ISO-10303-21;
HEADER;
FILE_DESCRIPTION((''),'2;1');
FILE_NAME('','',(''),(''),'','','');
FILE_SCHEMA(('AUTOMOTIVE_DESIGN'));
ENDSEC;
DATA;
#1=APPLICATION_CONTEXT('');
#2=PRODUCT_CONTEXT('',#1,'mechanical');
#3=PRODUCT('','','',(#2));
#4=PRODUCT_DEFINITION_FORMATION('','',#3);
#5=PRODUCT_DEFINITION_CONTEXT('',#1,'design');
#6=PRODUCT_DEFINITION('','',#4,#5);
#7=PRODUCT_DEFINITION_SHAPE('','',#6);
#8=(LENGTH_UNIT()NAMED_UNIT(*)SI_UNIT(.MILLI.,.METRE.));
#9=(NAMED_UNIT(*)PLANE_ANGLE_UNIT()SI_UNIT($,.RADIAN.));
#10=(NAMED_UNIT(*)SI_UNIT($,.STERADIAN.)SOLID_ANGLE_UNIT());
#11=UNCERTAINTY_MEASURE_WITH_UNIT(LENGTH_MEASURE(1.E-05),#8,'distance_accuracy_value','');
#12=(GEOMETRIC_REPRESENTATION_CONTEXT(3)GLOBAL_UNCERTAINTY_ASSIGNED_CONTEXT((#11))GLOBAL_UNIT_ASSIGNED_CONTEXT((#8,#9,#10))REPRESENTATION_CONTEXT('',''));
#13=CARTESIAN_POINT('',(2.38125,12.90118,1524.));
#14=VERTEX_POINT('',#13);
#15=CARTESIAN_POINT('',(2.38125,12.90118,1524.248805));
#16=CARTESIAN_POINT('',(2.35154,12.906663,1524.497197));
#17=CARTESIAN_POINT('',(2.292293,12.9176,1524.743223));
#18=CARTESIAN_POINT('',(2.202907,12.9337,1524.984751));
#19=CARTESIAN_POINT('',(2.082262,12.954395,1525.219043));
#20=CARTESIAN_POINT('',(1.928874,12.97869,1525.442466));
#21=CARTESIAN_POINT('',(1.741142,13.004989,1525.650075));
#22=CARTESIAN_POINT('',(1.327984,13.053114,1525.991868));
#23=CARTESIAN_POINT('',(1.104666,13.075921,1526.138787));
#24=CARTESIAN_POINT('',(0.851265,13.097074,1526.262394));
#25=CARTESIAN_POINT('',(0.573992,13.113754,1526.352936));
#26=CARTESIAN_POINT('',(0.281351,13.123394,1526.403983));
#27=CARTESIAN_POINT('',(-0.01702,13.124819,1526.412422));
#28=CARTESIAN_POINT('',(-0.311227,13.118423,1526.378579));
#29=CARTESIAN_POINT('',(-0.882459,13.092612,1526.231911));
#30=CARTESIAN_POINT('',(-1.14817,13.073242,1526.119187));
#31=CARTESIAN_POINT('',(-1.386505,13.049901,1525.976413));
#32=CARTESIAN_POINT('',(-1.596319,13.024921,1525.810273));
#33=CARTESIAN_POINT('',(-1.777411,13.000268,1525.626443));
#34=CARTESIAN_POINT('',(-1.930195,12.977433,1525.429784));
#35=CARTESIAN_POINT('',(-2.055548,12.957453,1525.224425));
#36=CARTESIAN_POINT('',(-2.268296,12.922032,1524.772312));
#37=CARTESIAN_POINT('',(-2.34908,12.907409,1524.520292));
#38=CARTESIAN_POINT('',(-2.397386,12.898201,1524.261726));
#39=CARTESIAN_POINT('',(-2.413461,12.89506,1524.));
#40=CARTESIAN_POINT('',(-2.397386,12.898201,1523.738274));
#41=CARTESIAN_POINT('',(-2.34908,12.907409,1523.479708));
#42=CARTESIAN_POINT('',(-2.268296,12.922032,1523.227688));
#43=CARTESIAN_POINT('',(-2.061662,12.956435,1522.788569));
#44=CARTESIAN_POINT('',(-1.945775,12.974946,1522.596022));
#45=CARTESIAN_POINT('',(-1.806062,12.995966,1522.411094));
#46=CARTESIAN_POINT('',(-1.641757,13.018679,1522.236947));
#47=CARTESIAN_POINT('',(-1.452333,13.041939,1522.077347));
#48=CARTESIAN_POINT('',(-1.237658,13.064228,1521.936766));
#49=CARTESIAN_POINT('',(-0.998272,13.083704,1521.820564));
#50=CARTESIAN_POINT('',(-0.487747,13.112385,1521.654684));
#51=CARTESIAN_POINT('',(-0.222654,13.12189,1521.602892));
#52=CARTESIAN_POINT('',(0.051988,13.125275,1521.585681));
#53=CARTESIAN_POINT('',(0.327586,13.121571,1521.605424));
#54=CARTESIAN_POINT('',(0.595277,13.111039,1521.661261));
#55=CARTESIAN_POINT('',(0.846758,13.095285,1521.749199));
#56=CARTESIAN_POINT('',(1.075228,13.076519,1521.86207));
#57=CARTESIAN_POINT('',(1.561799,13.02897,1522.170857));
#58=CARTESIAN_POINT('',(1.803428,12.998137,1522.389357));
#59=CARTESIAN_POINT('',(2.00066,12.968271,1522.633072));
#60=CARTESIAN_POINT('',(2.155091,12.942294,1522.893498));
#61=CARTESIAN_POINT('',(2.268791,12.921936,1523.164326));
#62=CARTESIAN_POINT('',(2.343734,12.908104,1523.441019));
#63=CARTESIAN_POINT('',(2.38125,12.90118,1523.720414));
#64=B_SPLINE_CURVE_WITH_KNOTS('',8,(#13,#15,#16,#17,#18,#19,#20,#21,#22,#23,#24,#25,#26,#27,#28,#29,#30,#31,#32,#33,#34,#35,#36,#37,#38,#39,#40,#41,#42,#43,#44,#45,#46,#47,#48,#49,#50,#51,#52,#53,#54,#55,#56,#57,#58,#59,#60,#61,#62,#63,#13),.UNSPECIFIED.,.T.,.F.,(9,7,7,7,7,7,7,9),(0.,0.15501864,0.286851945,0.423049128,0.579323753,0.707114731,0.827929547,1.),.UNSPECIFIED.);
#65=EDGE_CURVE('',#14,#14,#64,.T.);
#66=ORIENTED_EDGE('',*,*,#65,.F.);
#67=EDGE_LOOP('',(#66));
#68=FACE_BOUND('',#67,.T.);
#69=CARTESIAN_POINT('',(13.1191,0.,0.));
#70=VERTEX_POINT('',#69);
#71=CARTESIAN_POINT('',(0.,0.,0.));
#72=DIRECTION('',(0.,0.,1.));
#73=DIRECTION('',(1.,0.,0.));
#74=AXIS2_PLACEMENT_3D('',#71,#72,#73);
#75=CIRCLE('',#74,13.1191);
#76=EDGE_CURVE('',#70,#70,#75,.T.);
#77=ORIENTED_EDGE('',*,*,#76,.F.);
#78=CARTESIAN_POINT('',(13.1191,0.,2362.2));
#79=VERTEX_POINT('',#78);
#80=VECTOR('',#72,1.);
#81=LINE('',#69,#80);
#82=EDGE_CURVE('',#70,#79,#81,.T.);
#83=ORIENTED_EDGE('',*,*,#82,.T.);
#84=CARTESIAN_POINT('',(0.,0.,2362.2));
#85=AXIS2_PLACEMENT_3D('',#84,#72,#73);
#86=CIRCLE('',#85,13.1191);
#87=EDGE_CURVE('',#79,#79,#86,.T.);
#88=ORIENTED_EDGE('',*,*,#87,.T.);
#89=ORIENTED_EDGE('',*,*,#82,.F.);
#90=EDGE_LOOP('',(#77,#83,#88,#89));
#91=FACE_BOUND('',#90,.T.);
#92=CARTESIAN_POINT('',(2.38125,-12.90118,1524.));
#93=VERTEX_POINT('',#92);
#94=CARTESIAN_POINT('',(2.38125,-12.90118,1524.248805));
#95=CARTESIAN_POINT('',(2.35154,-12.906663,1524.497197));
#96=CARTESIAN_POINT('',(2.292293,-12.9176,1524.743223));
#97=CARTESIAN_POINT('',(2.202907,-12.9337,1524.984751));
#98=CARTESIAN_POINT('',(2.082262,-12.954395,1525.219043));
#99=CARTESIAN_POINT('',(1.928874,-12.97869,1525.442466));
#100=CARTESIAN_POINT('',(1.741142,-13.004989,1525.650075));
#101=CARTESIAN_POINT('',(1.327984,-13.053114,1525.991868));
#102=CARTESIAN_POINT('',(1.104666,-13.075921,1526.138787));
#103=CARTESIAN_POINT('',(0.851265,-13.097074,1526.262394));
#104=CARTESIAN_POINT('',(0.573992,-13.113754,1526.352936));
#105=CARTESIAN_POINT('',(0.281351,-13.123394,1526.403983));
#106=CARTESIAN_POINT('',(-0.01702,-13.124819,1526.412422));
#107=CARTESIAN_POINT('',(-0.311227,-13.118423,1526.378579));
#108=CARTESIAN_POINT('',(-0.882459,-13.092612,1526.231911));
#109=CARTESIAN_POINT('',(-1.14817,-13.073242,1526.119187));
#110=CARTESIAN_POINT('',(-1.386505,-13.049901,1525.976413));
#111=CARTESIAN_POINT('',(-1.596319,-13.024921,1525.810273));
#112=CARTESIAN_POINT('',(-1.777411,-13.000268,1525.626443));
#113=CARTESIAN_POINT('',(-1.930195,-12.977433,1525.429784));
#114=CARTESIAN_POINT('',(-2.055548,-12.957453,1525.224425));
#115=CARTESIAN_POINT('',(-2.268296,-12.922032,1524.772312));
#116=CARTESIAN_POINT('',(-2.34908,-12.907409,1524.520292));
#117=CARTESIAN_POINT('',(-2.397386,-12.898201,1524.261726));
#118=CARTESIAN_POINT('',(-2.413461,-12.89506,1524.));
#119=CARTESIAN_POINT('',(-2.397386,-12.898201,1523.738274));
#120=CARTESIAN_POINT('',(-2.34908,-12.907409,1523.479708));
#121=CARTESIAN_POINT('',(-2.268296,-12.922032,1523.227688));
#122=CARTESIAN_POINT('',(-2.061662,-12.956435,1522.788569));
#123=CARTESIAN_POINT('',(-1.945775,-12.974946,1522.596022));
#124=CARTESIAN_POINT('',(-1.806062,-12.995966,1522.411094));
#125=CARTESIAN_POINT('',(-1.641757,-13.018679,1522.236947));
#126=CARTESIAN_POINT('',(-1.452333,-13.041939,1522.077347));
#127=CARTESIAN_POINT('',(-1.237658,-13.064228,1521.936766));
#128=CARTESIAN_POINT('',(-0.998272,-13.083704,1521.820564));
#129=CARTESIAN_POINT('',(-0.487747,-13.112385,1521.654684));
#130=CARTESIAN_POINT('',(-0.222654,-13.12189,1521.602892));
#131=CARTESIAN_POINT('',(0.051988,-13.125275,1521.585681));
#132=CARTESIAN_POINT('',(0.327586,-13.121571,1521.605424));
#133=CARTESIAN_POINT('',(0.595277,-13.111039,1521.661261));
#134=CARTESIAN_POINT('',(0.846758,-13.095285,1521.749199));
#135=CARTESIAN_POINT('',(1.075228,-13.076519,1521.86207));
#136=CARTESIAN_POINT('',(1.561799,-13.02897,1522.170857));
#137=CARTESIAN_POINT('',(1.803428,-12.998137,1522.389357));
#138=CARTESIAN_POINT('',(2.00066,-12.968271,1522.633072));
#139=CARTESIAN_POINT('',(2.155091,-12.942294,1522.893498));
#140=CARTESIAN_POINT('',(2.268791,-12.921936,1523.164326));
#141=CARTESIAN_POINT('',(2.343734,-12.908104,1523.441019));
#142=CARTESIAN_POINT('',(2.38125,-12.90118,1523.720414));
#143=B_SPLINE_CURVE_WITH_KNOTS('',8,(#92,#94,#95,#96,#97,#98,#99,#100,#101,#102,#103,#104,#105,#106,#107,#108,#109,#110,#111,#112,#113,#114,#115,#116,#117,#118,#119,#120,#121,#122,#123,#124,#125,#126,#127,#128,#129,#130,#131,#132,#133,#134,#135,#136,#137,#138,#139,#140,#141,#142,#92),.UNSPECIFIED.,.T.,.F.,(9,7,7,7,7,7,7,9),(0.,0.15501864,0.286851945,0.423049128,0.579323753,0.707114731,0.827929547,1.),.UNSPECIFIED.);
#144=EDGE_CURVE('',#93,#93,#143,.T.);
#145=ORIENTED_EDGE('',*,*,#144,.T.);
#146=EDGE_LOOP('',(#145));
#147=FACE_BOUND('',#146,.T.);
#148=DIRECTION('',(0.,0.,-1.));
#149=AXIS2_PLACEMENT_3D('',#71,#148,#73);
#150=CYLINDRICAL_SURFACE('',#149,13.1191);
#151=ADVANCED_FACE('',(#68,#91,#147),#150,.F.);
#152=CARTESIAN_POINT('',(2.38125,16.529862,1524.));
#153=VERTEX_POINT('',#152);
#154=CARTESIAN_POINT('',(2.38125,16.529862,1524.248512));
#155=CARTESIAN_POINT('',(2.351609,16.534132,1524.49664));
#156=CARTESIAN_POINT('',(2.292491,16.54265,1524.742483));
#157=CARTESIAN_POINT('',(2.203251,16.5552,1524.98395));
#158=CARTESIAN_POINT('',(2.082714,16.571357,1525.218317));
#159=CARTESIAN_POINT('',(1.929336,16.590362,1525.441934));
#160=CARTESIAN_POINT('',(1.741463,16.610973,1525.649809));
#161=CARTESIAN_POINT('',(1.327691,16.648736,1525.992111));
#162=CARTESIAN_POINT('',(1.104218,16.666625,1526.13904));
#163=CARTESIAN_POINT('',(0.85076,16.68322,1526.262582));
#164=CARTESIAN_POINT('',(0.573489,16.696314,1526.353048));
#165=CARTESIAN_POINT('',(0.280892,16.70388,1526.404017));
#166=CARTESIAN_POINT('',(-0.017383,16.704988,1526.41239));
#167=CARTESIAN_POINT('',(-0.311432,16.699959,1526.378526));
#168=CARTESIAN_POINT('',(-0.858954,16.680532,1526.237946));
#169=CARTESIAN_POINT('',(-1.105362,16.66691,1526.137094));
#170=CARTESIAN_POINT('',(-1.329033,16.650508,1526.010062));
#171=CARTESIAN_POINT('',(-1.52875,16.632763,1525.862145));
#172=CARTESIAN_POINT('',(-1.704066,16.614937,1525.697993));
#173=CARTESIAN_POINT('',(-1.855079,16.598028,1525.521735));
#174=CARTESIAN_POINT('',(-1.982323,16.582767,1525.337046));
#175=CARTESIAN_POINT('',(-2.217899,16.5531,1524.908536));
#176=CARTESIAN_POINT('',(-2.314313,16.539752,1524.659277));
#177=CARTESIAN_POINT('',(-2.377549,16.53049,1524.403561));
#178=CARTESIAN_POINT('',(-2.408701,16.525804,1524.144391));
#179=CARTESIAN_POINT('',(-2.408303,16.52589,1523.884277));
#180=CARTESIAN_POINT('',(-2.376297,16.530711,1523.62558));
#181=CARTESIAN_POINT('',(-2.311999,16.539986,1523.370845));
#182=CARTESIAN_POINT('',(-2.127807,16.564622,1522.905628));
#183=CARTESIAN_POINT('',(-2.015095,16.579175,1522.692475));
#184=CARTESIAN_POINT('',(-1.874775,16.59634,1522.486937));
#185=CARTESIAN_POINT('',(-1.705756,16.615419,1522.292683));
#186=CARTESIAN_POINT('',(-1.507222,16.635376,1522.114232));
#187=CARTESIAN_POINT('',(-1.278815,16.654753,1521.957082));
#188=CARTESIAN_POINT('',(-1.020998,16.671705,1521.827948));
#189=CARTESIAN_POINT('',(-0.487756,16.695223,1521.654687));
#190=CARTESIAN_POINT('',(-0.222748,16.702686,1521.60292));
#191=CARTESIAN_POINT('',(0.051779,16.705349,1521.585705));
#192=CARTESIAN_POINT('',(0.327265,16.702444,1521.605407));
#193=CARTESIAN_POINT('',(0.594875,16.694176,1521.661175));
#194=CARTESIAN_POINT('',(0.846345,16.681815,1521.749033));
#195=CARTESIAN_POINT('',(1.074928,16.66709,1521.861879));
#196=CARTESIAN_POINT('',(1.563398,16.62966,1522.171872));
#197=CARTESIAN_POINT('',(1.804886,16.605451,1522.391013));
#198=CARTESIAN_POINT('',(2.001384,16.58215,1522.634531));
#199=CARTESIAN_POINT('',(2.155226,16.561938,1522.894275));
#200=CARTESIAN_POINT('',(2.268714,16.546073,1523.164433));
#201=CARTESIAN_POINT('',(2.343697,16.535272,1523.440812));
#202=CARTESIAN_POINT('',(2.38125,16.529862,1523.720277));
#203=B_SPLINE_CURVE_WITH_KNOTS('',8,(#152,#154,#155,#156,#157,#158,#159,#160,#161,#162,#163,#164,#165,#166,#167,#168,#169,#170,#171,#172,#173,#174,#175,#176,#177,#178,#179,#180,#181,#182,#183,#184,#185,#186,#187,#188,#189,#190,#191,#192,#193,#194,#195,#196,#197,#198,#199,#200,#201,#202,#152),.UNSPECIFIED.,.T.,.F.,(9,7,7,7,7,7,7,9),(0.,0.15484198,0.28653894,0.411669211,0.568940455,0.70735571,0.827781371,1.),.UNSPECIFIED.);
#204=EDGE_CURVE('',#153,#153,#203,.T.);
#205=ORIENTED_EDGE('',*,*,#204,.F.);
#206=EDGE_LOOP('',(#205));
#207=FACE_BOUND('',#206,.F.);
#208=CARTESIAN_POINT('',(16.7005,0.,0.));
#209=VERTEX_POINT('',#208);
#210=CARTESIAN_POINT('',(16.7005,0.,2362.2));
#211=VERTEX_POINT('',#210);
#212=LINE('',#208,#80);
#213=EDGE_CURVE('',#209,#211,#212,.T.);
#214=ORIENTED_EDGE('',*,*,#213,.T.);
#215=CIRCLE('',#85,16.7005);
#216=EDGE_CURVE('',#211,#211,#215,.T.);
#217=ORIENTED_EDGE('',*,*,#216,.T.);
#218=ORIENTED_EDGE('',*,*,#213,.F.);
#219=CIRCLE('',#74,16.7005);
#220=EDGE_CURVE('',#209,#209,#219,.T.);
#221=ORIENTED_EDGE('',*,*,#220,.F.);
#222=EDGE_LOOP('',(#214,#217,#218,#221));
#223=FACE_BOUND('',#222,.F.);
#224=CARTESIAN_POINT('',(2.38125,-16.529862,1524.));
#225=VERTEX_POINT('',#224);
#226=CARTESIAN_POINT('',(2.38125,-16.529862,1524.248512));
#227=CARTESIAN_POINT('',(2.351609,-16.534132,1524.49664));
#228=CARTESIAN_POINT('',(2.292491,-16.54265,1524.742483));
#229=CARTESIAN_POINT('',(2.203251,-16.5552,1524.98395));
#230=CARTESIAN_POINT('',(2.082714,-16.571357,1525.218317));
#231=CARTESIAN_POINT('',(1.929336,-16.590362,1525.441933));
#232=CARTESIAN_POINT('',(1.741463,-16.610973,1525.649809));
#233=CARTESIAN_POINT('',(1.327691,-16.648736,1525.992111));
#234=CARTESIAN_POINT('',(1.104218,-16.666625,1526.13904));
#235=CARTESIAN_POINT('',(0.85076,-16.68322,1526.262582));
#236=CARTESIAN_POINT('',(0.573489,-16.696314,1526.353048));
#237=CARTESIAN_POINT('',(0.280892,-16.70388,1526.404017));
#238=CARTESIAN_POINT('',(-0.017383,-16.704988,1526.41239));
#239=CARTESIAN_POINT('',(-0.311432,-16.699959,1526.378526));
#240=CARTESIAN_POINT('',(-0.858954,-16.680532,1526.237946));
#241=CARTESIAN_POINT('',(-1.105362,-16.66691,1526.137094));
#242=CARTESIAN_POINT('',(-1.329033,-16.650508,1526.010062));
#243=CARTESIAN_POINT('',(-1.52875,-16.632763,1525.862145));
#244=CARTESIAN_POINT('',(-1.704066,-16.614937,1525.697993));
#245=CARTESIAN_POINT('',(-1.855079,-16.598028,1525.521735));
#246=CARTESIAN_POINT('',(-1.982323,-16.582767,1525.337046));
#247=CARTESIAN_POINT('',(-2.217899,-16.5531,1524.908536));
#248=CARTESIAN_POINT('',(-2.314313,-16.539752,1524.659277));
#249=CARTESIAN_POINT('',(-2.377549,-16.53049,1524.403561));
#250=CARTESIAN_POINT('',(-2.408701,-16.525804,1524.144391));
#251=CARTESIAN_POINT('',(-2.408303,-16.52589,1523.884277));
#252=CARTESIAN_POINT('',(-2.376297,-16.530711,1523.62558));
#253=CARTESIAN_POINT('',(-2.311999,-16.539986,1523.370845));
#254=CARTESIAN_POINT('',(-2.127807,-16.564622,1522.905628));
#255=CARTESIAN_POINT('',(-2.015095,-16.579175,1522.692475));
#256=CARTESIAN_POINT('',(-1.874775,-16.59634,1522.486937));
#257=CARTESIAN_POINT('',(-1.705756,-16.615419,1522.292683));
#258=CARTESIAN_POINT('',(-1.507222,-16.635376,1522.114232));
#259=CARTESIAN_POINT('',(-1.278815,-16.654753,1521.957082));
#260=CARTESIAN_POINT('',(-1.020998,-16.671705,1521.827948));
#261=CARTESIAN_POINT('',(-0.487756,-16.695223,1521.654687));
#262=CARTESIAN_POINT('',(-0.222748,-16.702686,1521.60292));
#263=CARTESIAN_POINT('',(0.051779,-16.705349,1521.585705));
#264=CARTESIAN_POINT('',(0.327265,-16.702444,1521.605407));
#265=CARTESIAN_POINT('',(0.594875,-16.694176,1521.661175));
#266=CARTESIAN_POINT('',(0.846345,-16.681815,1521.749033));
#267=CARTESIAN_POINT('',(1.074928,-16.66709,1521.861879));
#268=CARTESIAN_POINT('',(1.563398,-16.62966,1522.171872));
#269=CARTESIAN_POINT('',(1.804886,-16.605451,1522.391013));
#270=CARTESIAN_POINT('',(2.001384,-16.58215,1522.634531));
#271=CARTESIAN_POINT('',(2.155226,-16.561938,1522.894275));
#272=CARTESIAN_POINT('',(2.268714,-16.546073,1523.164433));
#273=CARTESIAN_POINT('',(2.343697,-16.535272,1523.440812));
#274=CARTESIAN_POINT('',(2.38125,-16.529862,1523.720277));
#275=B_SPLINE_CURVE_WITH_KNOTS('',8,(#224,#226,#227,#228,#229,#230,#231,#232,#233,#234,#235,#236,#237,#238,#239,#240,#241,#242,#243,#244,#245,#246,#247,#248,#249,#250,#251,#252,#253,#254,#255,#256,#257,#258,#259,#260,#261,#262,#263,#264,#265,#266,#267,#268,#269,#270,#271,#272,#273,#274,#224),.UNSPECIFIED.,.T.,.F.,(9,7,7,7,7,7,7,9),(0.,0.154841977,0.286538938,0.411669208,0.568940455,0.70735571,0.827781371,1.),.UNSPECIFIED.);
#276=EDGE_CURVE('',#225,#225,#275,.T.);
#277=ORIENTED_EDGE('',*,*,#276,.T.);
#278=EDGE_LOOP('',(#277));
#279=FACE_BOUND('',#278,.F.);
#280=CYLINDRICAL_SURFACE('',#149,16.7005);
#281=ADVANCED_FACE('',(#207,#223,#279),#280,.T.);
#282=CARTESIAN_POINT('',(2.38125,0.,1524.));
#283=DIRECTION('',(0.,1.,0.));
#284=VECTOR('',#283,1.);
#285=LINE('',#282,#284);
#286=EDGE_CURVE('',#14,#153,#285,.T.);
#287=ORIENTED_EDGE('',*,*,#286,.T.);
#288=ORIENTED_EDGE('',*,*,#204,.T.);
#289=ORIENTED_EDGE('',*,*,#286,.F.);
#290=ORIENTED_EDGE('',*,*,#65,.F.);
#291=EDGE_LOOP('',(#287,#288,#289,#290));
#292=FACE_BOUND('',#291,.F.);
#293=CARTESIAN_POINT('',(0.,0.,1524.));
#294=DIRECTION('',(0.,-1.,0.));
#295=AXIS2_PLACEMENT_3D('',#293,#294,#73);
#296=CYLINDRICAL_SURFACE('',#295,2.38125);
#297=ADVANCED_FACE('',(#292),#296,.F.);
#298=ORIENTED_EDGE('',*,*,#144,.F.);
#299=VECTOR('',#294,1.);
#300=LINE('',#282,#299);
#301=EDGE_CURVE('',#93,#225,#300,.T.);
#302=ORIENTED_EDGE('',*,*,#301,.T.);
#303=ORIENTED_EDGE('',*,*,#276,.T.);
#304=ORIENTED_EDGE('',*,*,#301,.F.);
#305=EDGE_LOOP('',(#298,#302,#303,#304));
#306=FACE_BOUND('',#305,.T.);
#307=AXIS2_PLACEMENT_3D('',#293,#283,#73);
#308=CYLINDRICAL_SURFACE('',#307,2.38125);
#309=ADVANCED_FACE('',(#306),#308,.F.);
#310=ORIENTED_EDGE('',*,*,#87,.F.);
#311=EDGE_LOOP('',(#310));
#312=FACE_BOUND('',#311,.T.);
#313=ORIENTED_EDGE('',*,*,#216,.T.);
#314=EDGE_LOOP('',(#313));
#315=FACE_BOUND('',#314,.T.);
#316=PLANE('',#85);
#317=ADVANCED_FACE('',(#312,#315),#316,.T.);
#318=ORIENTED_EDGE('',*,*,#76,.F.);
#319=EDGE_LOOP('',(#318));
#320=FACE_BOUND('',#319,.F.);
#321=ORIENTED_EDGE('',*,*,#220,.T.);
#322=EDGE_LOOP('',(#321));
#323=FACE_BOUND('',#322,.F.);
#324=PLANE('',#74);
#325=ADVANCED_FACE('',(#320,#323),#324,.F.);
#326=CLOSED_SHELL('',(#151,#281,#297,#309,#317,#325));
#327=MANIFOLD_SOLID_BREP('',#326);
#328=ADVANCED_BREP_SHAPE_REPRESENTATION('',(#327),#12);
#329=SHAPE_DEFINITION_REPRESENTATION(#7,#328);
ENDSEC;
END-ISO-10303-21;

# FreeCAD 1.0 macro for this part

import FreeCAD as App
import Part
import Sketcher
from FreeCAD import Vector
Q = App.Units.Quantity

doc = App.newDocument("Part")
body = doc.addObject("PartDesign::Body", "Body")

# Sketch on XY plane
sketch1 = body.newObject("Sketcher::SketchObject", "Sketch")
sketch1.AttachmentSupport = (doc.getObject("XY_Plane"), [""])
sketch1.MapMode = "FlatFace"
sketch1.addGeometry(Part.Circle(Vector(0, 0, 0), Vector(0, 0, 1), 17), False)
sketch1.addGeometry(Part.Circle(Vector(0, 0, 0), Vector(0, 0, 1), 13), False)
sketch1.addConstraint(Sketcher.Constraint("Coincident", 0, 3, -1, 1))
sketch1.addConstraint(Sketcher.Constraint("Coincident", 1, 3, -1, 1))
sketch1.addConstraint(Sketcher.Constraint("Diameter", 0, Q("1.315 in")))
sketch1.addConstraint(Sketcher.Constraint("Diameter", 1, Q("1.033 in")))
pad1 = body.newObject("PartDesign::Pad", "Pad")
pad1.Profile = sketch1
pad1.Length = Q("93 in")

# Sketch on XZ plane
sketch2 = body.newObject("Sketcher::SketchObject", "Sketch001")
sketch2.AttachmentSupport = (doc.getObject("XZ_Plane"), [""])
sketch2.MapMode = "FlatFace"
sketch2.addGeometry(Part.Circle(Vector(0, 1524, 0), Vector(0, 0, 1), 2.4), False)
sketch2.addConstraint(Sketcher.Constraint("PointOnObject", 0, 3, -2))
sketch2.addConstraint(Sketcher.Constraint("Diameter", 0, Q("0.1875 in")))
sketch2.addConstraint(Sketcher.Constraint("DistanceY", -1, 1, 0, 3, Q("60 in")))
pocket1 = body.newObject("PartDesign::Pocket", "Pocket")
pocket1.Profile = sketch2
pocket1.Type = "ThroughAll"
pocket1.Midplane = True

doc.recompute()
